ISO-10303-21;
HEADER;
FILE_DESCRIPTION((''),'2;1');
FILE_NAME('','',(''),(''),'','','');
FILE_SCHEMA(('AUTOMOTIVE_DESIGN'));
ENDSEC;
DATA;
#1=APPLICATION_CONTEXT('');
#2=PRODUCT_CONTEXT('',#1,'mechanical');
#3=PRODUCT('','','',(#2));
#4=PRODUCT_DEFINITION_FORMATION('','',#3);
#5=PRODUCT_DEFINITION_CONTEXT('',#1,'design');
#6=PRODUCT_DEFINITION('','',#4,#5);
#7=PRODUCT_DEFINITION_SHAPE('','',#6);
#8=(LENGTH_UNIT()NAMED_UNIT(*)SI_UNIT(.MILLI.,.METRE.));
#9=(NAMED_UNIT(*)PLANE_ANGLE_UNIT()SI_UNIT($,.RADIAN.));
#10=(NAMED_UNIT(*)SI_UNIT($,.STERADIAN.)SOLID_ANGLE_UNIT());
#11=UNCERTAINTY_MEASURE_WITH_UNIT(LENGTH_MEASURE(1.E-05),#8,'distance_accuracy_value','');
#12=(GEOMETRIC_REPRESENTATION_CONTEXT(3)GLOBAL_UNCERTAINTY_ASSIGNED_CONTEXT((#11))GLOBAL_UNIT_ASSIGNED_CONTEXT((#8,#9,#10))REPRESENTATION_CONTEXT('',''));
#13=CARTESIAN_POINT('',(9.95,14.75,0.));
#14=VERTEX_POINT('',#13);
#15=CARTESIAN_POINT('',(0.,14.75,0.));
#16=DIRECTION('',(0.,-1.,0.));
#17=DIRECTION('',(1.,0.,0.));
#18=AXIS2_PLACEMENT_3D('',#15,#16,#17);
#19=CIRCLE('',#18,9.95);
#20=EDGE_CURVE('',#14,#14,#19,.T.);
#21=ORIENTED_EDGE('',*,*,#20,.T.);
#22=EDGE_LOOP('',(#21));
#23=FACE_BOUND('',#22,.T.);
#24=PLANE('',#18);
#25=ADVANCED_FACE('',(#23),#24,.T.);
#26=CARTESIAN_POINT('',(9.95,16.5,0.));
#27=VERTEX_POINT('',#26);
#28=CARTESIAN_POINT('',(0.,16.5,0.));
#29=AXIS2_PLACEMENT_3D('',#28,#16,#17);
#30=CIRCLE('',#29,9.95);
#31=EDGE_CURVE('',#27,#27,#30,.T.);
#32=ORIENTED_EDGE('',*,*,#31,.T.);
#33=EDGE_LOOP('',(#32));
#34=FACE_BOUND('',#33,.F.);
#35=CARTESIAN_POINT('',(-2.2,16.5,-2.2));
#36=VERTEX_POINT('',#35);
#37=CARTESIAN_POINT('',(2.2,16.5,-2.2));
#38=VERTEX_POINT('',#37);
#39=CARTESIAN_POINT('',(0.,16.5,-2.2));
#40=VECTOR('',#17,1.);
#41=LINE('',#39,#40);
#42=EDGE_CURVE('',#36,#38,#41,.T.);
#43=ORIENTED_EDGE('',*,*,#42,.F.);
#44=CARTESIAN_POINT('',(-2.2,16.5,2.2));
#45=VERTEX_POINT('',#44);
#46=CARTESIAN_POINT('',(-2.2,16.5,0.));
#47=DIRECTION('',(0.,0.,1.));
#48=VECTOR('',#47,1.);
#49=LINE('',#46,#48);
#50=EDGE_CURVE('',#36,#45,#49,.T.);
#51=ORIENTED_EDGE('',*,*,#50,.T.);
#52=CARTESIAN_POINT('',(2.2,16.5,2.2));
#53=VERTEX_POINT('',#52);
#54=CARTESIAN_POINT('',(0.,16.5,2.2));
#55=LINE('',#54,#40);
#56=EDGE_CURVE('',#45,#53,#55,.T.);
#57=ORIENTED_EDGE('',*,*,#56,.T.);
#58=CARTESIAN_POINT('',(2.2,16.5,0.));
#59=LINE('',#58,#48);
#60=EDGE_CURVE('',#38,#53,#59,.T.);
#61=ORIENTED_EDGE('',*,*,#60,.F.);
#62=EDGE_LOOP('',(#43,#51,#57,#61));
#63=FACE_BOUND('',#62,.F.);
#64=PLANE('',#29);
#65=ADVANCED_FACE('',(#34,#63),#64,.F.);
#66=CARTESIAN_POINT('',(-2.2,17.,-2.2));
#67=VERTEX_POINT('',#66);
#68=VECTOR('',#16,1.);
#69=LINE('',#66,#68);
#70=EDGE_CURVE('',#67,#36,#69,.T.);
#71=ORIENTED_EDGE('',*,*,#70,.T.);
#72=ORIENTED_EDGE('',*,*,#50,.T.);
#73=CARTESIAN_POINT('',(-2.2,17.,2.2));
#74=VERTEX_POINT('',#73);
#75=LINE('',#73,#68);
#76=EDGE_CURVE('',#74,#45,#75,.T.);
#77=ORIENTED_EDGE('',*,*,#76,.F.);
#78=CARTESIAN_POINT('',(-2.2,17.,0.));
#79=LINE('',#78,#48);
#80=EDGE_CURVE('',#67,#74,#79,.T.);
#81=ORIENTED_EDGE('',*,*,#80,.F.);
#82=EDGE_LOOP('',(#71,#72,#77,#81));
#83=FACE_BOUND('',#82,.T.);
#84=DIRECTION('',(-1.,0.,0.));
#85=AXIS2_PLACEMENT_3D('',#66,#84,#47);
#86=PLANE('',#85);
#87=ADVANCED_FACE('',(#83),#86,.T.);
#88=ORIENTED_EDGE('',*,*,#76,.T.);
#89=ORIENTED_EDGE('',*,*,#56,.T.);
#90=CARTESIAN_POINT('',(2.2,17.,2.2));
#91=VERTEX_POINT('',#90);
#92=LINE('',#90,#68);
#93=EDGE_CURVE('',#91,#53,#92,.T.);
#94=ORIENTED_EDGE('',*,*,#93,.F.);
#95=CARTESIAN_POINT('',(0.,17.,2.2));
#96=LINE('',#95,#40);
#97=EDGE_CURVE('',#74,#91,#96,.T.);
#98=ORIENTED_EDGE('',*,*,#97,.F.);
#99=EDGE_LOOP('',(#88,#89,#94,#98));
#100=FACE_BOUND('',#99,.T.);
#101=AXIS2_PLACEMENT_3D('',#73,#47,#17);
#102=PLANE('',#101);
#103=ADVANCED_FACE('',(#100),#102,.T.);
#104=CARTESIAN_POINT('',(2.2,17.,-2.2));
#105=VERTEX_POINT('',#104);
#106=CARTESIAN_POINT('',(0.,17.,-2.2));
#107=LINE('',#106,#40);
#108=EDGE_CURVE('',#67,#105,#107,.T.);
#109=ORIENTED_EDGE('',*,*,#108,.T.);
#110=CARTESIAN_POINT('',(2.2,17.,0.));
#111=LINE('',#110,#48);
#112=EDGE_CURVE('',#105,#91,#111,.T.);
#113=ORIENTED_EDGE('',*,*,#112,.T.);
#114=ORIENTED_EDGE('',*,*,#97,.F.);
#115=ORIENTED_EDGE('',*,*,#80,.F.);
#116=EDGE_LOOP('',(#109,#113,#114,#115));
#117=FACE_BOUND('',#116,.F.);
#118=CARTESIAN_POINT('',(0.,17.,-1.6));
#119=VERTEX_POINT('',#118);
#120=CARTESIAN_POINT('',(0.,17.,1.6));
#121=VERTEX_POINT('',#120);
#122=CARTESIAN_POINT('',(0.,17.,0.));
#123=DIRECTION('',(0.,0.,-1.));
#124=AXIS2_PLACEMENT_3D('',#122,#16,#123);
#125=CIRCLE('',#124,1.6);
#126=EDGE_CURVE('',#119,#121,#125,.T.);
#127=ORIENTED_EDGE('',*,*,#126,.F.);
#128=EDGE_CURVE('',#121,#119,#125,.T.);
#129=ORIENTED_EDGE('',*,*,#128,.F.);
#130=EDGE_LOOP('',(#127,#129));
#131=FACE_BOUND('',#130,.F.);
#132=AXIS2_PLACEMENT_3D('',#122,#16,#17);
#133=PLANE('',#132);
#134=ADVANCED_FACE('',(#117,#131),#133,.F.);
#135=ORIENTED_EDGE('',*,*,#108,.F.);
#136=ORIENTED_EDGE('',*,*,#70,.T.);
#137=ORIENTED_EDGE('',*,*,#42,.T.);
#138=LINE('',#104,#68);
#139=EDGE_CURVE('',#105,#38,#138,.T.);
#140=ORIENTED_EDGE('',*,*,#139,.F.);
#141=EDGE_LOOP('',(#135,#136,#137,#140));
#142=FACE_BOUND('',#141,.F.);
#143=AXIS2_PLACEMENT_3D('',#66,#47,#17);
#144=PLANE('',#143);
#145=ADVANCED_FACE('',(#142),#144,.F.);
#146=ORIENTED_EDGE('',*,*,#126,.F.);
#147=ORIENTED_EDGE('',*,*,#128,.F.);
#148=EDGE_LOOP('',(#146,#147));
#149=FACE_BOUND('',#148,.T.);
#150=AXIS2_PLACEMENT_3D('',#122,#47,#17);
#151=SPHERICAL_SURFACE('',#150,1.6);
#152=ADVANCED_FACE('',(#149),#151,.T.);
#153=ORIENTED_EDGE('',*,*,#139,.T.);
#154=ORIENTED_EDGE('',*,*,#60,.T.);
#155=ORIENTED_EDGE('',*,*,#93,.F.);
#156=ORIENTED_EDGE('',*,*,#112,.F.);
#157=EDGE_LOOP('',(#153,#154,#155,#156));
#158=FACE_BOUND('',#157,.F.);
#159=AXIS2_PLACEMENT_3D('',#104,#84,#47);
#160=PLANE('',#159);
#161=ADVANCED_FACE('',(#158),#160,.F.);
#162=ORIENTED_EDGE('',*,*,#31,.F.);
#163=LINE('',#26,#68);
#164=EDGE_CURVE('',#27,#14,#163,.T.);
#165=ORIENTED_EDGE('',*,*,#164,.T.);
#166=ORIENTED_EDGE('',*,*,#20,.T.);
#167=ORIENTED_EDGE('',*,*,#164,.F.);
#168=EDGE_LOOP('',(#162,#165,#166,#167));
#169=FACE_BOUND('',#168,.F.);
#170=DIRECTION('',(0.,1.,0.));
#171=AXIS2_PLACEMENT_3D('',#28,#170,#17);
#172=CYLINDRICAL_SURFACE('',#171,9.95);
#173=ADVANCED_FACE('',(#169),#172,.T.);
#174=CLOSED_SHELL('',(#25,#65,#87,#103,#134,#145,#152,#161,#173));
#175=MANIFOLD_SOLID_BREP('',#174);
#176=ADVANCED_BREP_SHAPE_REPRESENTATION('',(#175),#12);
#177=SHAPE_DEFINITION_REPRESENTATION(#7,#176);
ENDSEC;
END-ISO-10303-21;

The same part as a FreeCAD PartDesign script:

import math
import FreeCAD as App
import Part
import Sketcher
from FreeCAD import Vector


def add_polygon(sketch, points):
    """Adds a closed chain of lines whose ends are joined by coincident constraints."""
    first, n = sketch.GeometryCount, len(points)
    for a, b in zip(points, points[1:] + points[:1]):
        sketch.addGeometry(Part.LineSegment(App.Vector(*a, 0), App.Vector(*b, 0)), False)
    for i in range(n):
        sketch.addConstraint(Sketcher.Constraint("Coincident", first + i, 2, first + (i + 1) % n, 1))

doc = App.newDocument("Part")
body = doc.addObject("PartDesign::Body", "Body")

sketch1 = body.newObject("Sketcher::SketchObject", "Sketch")
sketch1.AttachmentSupport = (doc.getObject("XZ_Plane"), [""])
sketch1.MapMode = "FlatFace"
add_polygon(sketch1, [(0, 0), (0, -4.4), (4.4, -4.4), (4.4, 0)])
sketch1.addConstraint([
    Sketcher.Constraint("Vertical", 0),
    Sketcher.Constraint("Horizontal", 1),
    Sketcher.Constraint("Vertical", 2),
    Sketcher.Constraint("Horizontal", 3),
    Sketcher.Constraint("Coincident", 3, 2, -1, 1),
    Sketcher.Constraint("Equal", 3, 0),
    Sketcher.Constraint("DistanceX", 1, 1, 1, 2, 4.4),
])
pad1 = body.newObject("PartDesign::Pad", "Pad")
pad1.Profile = sketch1
pad1.Length = 0.5
body2 = doc.addObject("PartDesign::Body", "Body001")
doc.recompute()

body.Placement = App.Placement(Vector(-2.2, 0, 2.2), App.Rotation(Vector(0, 0, 1), 0))
boolean = body2.newObject("PartDesign::Boolean", "Boolean")
boolean.Type = "Fuse"
boolean.addObjects([body])
body3 = doc.addObject("PartDesign::Body", "Body002")

sketch2 = body3.newObject("Sketcher::SketchObject", "Sketch001")
sketch2.AttachmentSupport = (doc.getObject("XZ_Plane002"), [""])
sketch2.MapMode = "FlatFace"
sketch2.addGeometry(Part.Circle(Vector(0, 0, 0), Vector(0, 0, 1), 10), False)
sketch2.addConstraint([
    Sketcher.Constraint("Coincident", 0, 3, -1, 1),
    Sketcher.Constraint("Diameter", 0, 19.9),
])
pad2 = body3.newObject("PartDesign::Pad", "Pad001")
pad2.Profile = sketch2
pad2.Length = 1.75
body4 = doc.addObject("PartDesign::Body", "Body003")
doc.recompute()

body3.Placement = App.Placement(Vector(0, -0.5, 0), App.Rotation(Vector(0, 0, 1), 0))
boolean2 = body4.newObject("PartDesign::Boolean", "Boolean001")
boolean2.Type = "Fuse"
boolean2.addObjects([body3])
body5 = doc.addObject("PartDesign::Body", "Body004")

sketch3 = body5.newObject("Sketcher::SketchObject", "Sketch002")
sketch3.AttachmentSupport = (doc.getObject("XZ_Plane004"), [""])
sketch3.MapMode = "FlatFace"
add_polygon(sketch3, [(0, 0), (0, -5), (5, -5), (5, 0)])
sketch3.addConstraint([
    Sketcher.Constraint("Vertical", 0),
    Sketcher.Constraint("Horizontal", 1),
    Sketcher.Constraint("Vertical", 2),
    Sketcher.Constraint("Horizontal", 3),
    Sketcher.Constraint("Coincident", 3, 2, -1, 1),
    Sketcher.Constraint("Equal", 3, 0),
    Sketcher.Constraint("DistanceX", 1, 1, 1, 2, 5.0),
])
pad3 = body5.newObject("PartDesign::Pad", "Pad002")
pad3.Profile = sketch3
pad3.Length = 5
body6 = doc.addObject("PartDesign::Body", "Body005")
doc.recompute()

body5.Placement = App.Placement(Vector(-2, 0, 2), App.Rotation(Vector(0, 0, 1), 0))
boolean3 = body6.newObject("PartDesign::Boolean", "Boolean002")
boolean3.Type = "Fuse"
boolean3.addObjects([body5])
body7 = doc.addObject("PartDesign::Body", "Body006")

sketch4 = body7.newObject("Sketcher::SketchObject", "Sketch003")
sketch4.AttachmentSupport = (doc.getObject("XZ_Plane006"), [""])
sketch4.MapMode = "FlatFace"
sketch4.addGeometry([
    Part.ArcOfCircle(Part.Circle(Vector(0, 0, 0), Vector(0, 0, 1), 1.6), math.radians(-90), math.radians(90)),
    Part.LineSegment(Vector(0, 1.6, 0), Vector(0, -1.6, 0)),
], False)
sketch4.addConstraint([
    Sketcher.Constraint("Coincident", 0, 1, 1, 2),
    Sketcher.Constraint("Coincident", 1, 1, 0, 2),
    Sketcher.Constraint("Vertical", 1),
    Sketcher.Constraint("Coincident", 0, 3, -1, 1),
    Sketcher.Constraint("PointOnObject", 0, 1, -2),
    Sketcher.Constraint("Radius", 0, 1.6),
])
revolution = body7.newObject("PartDesign::Revolution", "Revolution")
revolution.Profile = sketch4
revolution.ReferenceAxis = (sketch4, ["V_Axis"])
revolution.Angle = 360
doc.recompute()

boolean4 = body7.newObject("PartDesign::Boolean", "Boolean003")
boolean4.Type = "Cut"
boolean4.addObjects([body6])
doc.recompute()

boolean5 = body7.newObject("PartDesign::Boolean", "Boolean004")
boolean5.Type = "Fuse"
boolean5.addObjects([body2])
doc.recompute()

boolean6 = body7.newObject("PartDesign::Boolean", "Boolean005")
boolean6.Type = "Fuse"
boolean6.addObjects([body4])
body8 = doc.addObject("PartDesign::Body", "Body007")
doc.recompute()

body7.Placement = App.Placement(Vector(0, 17, 0), App.Rotation(Vector(0, 0, 1), 0))
boolean7 = body8.newObject("PartDesign::Boolean", "Boolean006")
boolean7.Type = "Fuse"
boolean7.addObjects([body7])

doc.recompute()
